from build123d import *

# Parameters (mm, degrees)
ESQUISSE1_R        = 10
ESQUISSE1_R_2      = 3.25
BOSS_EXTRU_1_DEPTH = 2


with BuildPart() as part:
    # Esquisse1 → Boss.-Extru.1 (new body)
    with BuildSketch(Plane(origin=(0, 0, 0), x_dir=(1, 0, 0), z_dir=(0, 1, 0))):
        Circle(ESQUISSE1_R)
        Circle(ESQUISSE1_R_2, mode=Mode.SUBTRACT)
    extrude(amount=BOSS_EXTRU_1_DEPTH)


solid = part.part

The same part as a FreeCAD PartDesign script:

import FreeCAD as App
import Part
import Sketcher

V = App.Vector
Q = App.Units.Quantity

doc = App.newDocument("Part")
params = doc.addObject("Spreadsheet::Sheet", "Params")
for row, (alias, value) in enumerate([
    ("sketch1_diameter", "20 mm"),
    ("sketch1_diameter2", "6.5 mm"),
    ("pad1_length", "2 mm"),
], start=1):
    params.set(f"A{row}", alias)
    params.set(f"B{row}", "=" + value)
    params.setAlias(f"B{row}", alias)

body = doc.addObject("PartDesign::Body", "Body")

sketch1 = body.newObject("Sketcher::SketchObject", "Sketch")
sketch1.AttachmentSupport = (doc.getObject("XZ_Plane"), [""])
sketch1.MapMode = "FlatFace"
sketch1.addGeometry([
    Part.Circle(V(0, 0, 0), V(0, 0, 1), 10),
    Part.Circle(V(0, 0, 0), V(0, 0, 1), 3.2),
], False)
sketch1.addConstraint([
    Sketcher.Constraint("Coincident", 0, 3, -1, 1),
    Sketcher.Constraint("Coincident", 1, 3, -1, 1),
    Sketcher.Constraint("Diameter", 0, Q("20 mm")),
    Sketcher.Constraint("Diameter", 1, Q("6.5 mm")),
])
sketch1.setExpression("Constraints[2]", "Params.sketch1_diameter")
sketch1.setExpression("Constraints[3]", "Params.sketch1_diameter2")
pad1 = body.newObject("PartDesign::Pad", "Pad")
pad1.Profile = sketch1
pad1.setExpression("Length", "Params.pad1_length")
pad1.Reversed = True

doc.recompute()
